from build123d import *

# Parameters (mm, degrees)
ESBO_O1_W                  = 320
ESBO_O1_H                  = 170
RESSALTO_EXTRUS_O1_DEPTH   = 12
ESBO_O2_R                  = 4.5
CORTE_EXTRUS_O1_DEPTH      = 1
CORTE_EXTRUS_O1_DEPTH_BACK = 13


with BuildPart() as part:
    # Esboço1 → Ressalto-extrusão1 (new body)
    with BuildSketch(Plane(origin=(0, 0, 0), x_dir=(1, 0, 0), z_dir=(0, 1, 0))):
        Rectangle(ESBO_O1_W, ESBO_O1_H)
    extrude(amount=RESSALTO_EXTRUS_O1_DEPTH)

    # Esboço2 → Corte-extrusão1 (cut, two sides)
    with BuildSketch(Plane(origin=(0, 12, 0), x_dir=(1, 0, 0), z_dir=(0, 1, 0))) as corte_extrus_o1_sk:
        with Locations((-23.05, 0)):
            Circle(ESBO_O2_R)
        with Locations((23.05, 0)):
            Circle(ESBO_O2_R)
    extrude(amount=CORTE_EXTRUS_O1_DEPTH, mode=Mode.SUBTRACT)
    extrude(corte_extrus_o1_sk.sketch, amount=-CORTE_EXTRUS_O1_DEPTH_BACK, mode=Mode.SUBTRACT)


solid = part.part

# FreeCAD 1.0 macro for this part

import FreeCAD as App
import Part
import Sketcher
Q = App.Units.Quantity

doc = App.newDocument("Part")
params = doc.addObject("Spreadsheet::Sheet", "Params")
for row, (alias, value) in enumerate([
    ("sketch1_width", "320 mm"),
    ("sketch1_height", "170 mm"),
    ("pad1_length", "12 mm"),
    ("sketch2_diameter", "9 mm"),
], start=1):
    params.set(f"A{row}", alias)
    params.set(f"B{row}", "=" + value)
    params.setAlias(f"B{row}", alias)

body = doc.addObject("PartDesign::Body", "Body")

# Sketch on XZ plane
sketch1 = body.newObject("Sketcher::SketchObject", "Sketch")
sketch1.AttachmentSupport = (doc.getObject("XZ_Plane"), [""])
sketch1.MapMode = "FlatFace"
sketch1.addGeometry([
    Part.LineSegment(App.Vector(-160, -85, 0), App.Vector(-160, 85, 0)),
    Part.LineSegment(App.Vector(-160, 85, 0), App.Vector(160, 85, 0)),
    Part.LineSegment(App.Vector(160, 85, 0), App.Vector(160, -85, 0)),
    Part.LineSegment(App.Vector(160, -85, 0), App.Vector(-160, -85, 0)),
], False)
sketch1.addConstraint([
    Sketcher.Constraint("Coincident", 0, 2, 1, 1),
    Sketcher.Constraint("Coincident", 1, 2, 2, 1),
    Sketcher.Constraint("Coincident", 2, 2, 3, 1),
    Sketcher.Constraint("Coincident", 3, 2, 0, 1),
    Sketcher.Constraint("Vertical", 0),
    Sketcher.Constraint("Horizontal", 1),
    Sketcher.Constraint("Vertical", 2),
    Sketcher.Constraint("Horizontal", 3),
    Sketcher.Constraint("Symmetric", 0, 2, 2, 2, -1, 1),
    Sketcher.Constraint("DistanceX", 1, 1, 1, 2, Q("320 mm")),
    Sketcher.Constraint("DistanceY", 0, 1, 0, 2, Q("170 mm")),
])
sketch1.setExpression("Constraints[9]", "Params.sketch1_width")
sketch1.setExpression("Constraints[10]", "Params.sketch1_height")
pad1 = body.newObject("PartDesign::Pad", "Pad")
pad1.Profile = sketch1
pad1.setExpression("Length", "Params.pad1_length")
pad1.Reversed = True

# Sketch on XZ plane
sketch2 = body.newObject("Sketcher::SketchObject", "Sketch001")
sketch2.AttachmentSupport = (doc.getObject("XZ_Plane"), [""])
sketch2.MapMode = "FlatFace"
sketch2.AttachmentOffset = App.Placement(App.Vector(0, 0, -12), App.Rotation())
sketch2.addGeometry([
    Part.Circle(App.Vector(-23.1, 0, 0), App.Vector(0, 0, 1), 4.5),
    Part.Circle(App.Vector(23.1, 0, 0), App.Vector(0, 0, 1), 4.5),
], False)
sketch2.addConstraint([
    Sketcher.Constraint("Equal", 0, 1),
    Sketcher.Constraint("Symmetric", 0, 3, 1, 3, -1, 1),
    Sketcher.Constraint("PointOnObject", 0, 3, -1),
    Sketcher.Constraint("Diameter", 0, Q("9 mm")),
    Sketcher.Constraint("DistanceX", 0, 3, 1, 3, Q("46.1 mm")),
])
sketch2.setExpression("Constraints[3]", "Params.sketch2_diameter")
pocket1 = body.newObject("PartDesign::Pocket", "Pocket")
pocket1.Profile = sketch2
pocket1.Type = "ThroughAll"
pocket1.Midplane = True

doc.recompute()
